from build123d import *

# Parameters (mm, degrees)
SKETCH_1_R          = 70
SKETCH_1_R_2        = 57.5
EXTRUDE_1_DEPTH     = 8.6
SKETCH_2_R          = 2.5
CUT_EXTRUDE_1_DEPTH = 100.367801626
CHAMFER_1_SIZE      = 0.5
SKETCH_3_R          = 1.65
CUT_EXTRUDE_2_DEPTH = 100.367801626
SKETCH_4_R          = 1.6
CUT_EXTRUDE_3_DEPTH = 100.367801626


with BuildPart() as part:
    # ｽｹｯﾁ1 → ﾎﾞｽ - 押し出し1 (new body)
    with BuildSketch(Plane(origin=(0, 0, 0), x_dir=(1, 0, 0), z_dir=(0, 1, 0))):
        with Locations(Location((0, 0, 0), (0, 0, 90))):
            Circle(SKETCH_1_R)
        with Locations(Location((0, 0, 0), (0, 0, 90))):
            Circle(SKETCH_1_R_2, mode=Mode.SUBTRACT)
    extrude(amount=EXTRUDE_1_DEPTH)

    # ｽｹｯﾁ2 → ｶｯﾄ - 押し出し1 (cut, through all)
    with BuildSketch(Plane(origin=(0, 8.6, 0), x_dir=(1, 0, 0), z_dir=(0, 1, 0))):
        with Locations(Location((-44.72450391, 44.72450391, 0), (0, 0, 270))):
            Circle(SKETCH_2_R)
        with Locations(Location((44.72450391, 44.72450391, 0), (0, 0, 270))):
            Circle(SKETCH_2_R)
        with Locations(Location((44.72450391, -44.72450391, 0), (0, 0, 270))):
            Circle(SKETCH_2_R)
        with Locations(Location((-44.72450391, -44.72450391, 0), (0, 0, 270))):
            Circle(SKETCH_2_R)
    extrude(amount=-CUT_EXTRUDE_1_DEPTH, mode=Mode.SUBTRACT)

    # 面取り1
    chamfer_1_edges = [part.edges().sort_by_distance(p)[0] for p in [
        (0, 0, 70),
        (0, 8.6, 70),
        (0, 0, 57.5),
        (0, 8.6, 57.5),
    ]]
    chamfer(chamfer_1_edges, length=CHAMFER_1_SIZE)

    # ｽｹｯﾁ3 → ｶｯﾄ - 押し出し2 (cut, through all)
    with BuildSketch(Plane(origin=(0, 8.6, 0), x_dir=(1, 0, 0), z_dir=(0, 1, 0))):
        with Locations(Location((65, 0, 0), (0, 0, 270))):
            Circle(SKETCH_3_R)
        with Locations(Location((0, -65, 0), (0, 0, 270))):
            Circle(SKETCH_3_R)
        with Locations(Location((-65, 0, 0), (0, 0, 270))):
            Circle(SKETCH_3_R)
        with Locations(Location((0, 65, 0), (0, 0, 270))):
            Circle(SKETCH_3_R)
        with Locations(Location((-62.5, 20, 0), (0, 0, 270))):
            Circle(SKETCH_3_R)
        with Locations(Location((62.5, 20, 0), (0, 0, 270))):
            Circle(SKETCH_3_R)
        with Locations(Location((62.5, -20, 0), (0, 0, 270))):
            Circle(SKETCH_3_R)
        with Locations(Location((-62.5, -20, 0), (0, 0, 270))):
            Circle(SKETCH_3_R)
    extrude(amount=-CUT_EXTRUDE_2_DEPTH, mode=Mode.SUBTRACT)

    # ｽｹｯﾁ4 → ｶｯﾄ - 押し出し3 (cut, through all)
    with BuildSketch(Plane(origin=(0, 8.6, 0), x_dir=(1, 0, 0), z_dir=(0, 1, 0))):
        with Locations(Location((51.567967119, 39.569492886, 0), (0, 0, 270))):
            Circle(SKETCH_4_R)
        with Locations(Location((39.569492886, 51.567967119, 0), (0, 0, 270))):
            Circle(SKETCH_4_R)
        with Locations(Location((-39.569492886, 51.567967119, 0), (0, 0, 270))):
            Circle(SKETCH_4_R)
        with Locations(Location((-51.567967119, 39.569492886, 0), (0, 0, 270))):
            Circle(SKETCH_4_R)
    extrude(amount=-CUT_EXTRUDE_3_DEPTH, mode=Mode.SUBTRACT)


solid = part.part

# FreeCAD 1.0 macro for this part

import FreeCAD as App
import Part
import Sketcher


def edges_at(feature, points):
    """Names of the edges that pass closest to the given points."""
    edges = feature.Shape.Edges
    near = lambda p: min(range(len(edges)), key=lambda i: edges[i].distToShape(Part.Vertex(*p))[0])
    return sorted({f"Edge{near(p) + 1}" for p in points})

doc = App.newDocument("Part")
params = doc.addObject("Spreadsheet::Sheet", "Params")
for row, (alias, value) in enumerate([
    ("sketch1_diameter", "140 mm"),
    ("sketch1_diameter2", "115 mm"),
    ("pad1_length", "8.6 mm"),
    ("sketch2_diameter", "5 mm"),
    ("chamfer_size", "0.5 mm"),
    ("sketch3_diameter", "3.3 mm"),
    ("sketch4_diameter", "3.2 mm"),
], start=1):
    params.set(f"A{row}", alias)
    params.set(f"B{row}", "=" + value)
    params.setAlias(f"B{row}", alias)

body = doc.addObject("PartDesign::Body", "Body")

# Sketch on XZ plane
sketch1 = body.newObject("Sketcher::SketchObject", "Sketch")
sketch1.AttachmentSupport = (doc.getObject("XZ_Plane"), [""])
sketch1.MapMode = "FlatFace"
sketch1.addGeometry([
    Part.Circle(App.Vector(0, 0, 0), App.Vector(0, 0, 1), 70),
    Part.Circle(App.Vector(0, 0, 0), App.Vector(0, 0, 1), 58),
], False)
sketch1.addConstraint([
    Sketcher.Constraint("Coincident", 0, 3, -1, 1),
    Sketcher.Constraint("Coincident", 1, 3, -1, 1),
    Sketcher.Constraint("Diameter", 0, 140.0),
    Sketcher.Constraint("Diameter", 1, 115.0),
])
sketch1.setExpression("Constraints[2]", "Params.sketch1_diameter")
sketch1.setExpression("Constraints[3]", "Params.sketch1_diameter2")
pad1 = body.newObject("PartDesign::Pad", "Pad")
pad1.Profile = sketch1
pad1.setExpression("Length", "Params.pad1_length")
pad1.Reversed = True

# Sketch on XZ plane
sketch2 = body.newObject("Sketcher::SketchObject", "Sketch001")
sketch2.AttachmentSupport = (doc.getObject("XZ_Plane"), [""])
sketch2.MapMode = "FlatFace"
sketch2.AttachmentOffset = App.Placement(App.Vector(0, 0, -8.6), App.Rotation())
sketch2.addGeometry([
    Part.Circle(App.Vector(-44.7, -44.7, 0), App.Vector(0, 0, 1), 2.5),
    Part.Circle(App.Vector(44.7, -44.7, 0), App.Vector(0, 0, 1), 2.5),
    Part.Circle(App.Vector(44.7, 44.7, 0), App.Vector(0, 0, 1), 2.5),
    Part.Circle(App.Vector(-44.7, 44.7, 0), App.Vector(0, 0, 1), 2.5),
], False)
sketch2.addConstraint([
    Sketcher.Constraint("Equal", 0, 1),
    Sketcher.Constraint("Equal", 1, 2),
    Sketcher.Constraint("Equal", 2, 3),
    Sketcher.Constraint("Symmetric", 0, 3, 2, 3, -1, 1),
    Sketcher.Constraint("Symmetric", 1, 3, 3, 3, -1, 1),
    Sketcher.Constraint("Symmetric", 0, 3, 1, 3, -2),
    Sketcher.Constraint("Diameter", 0, 5.0),
    Sketcher.Constraint("DistanceX", 0, 3, -1, 1, 44.724504),
    Sketcher.Constraint("DistanceY", 0, 3, -1, 1, 44.724504),
])
sketch2.setExpression("Constraints[6]", "Params.sketch2_diameter")
pocket1 = body.newObject("PartDesign::Pocket", "Pocket")
pocket1.Profile = sketch2
pocket1.Type = "ThroughAll"
pocket1.Reversed = True
doc.recompute()

chamfer = body.newObject("PartDesign::Chamfer", "Chamfer")
chamfer.Base = (pocket1, edges_at(pocket1, [
    (0, 0, 70),
    (0, 8.6, 70),
    (0, 0, 57.5),
    (0, 8.6, 57.5),
]))
chamfer.setExpression("Size", "Params.chamfer_size")

# Sketch on XZ plane
sketch3 = body.newObject("Sketcher::SketchObject", "Sketch002")
sketch3.AttachmentSupport = (doc.getObject("XZ_Plane"), [""])
sketch3.MapMode = "FlatFace"
sketch3.AttachmentOffset = App.Placement(App.Vector(0, 0, -8.6), App.Rotation())
sketch3.addGeometry([
    Part.Circle(App.Vector(65, 0, 0), App.Vector(0, 0, 1), 1.6),  # 0
    Part.Circle(App.Vector(0, 65, 0), App.Vector(0, 0, 1), 1.6),  # 1
    Part.Circle(App.Vector(-65, 0, 0), App.Vector(0, 0, 1), 1.6),  # 2
    Part.Circle(App.Vector(0, -65, 0), App.Vector(0, 0, 1), 1.6),  # 3
    Part.Circle(App.Vector(-62.5, -20, 0), App.Vector(0, 0, 1), 1.6),  # 4
    Part.Circle(App.Vector(62.5, -20, 0), App.Vector(0, 0, 1), 1.6),  # 5
    Part.Circle(App.Vector(62.5, 20, 0), App.Vector(0, 0, 1), 1.6),  # 6
    Part.Circle(App.Vector(-62.5, 20, 0), App.Vector(0, 0, 1), 1.6),  # 7
], False)
sketch3.addConstraint([
    Sketcher.Constraint("Equal", 0, 1),
    Sketcher.Constraint("Equal", 1, 2),
    Sketcher.Constraint("Equal", 2, 3),
    Sketcher.Constraint("Equal", 3, 4),
    Sketcher.Constraint("Equal", 4, 5),
    Sketcher.Constraint("Equal", 5, 6),
    Sketcher.Constraint("Equal", 6, 7),
    Sketcher.Constraint("Symmetric", 0, 3, 2, 3, -1, 1),
    Sketcher.Constraint("Symmetric", 1, 3, 3, 3, -1, 1),
    Sketcher.Constraint("Symmetric", 4, 3, 6, 3, -1, 1),
    Sketcher.Constraint("Symmetric", 5, 3, 7, 3, -1, 1),
    Sketcher.Constraint("Symmetric", 4, 3, 5, 3, -2),
    Sketcher.Constraint("PointOnObject", 0, 3, -1),
    Sketcher.Constraint("PointOnObject", 1, 3, -2),
    Sketcher.Constraint("Diameter", 0, 3.3),
    Sketcher.Constraint("DistanceX", -1, 1, 0, 3, 65.0),
    Sketcher.Constraint("DistanceY", -1, 1, 1, 3, 65.0),
    Sketcher.Constraint("DistanceY", 4, 3, -1, 1, 20.0),
    Sketcher.Constraint("DistanceX", 4, 3, 5, 3, 125.0),
])
sketch3.setExpression("Constraints[14]", "Params.sketch3_diameter")
pocket2 = body.newObject("PartDesign::Pocket", "Pocket001")
pocket2.Profile = sketch3
pocket2.Type = "ThroughAll"
pocket2.Reversed = True

# Sketch on XZ plane
sketch4 = body.newObject("Sketcher::SketchObject", "Sketch003")
sketch4.AttachmentSupport = (doc.getObject("XZ_Plane"), [""])
sketch4.MapMode = "FlatFace"
sketch4.AttachmentOffset = App.Placement(App.Vector(0, 0, -8.6), App.Rotation())
sketch4.addGeometry([
    Part.Circle(App.Vector(51.6, -39.6, 0), App.Vector(0, 0, 1), 1.6),
    Part.Circle(App.Vector(39.6, -51.6, 0), App.Vector(0, 0, 1), 1.6),
    Part.Circle(App.Vector(-39.6, -51.6, 0), App.Vector(0, 0, 1), 1.6),
    Part.Circle(App.Vector(-51.6, -39.6, 0), App.Vector(0, 0, 1), 1.6),
], False)
sketch4.addConstraint([
    Sketcher.Constraint("Equal", 0, 1),
    Sketcher.Constraint("Equal", 1, 2),
    Sketcher.Constraint("Equal", 2, 3),
    Sketcher.Constraint("Symmetric", 1, 3, 2, 3, -2),
    Sketcher.Constraint("Symmetric", 0, 3, 3, 3, -2),
    Sketcher.Constraint("Diameter", 0, 3.2),
    Sketcher.Constraint("DistanceX", 2, 3, 0, 3, 91.13746),
    Sketcher.Constraint("DistanceX", -1, 1, 0, 3, 51.567967),
    Sketcher.Constraint("DistanceY", 0, 3, -1, 1, 39.569493),
    Sketcher.Constraint("DistanceY", 1, 3, -1, 1, 51.567967),
])
sketch4.setExpression("Constraints[5]", "Params.sketch4_diameter")
pocket3 = body.newObject("PartDesign::Pocket", "Pocket002")
pocket3.Profile = sketch4
pocket3.Type = "ThroughAll"
pocket3.Reversed = True

doc.recompute()
